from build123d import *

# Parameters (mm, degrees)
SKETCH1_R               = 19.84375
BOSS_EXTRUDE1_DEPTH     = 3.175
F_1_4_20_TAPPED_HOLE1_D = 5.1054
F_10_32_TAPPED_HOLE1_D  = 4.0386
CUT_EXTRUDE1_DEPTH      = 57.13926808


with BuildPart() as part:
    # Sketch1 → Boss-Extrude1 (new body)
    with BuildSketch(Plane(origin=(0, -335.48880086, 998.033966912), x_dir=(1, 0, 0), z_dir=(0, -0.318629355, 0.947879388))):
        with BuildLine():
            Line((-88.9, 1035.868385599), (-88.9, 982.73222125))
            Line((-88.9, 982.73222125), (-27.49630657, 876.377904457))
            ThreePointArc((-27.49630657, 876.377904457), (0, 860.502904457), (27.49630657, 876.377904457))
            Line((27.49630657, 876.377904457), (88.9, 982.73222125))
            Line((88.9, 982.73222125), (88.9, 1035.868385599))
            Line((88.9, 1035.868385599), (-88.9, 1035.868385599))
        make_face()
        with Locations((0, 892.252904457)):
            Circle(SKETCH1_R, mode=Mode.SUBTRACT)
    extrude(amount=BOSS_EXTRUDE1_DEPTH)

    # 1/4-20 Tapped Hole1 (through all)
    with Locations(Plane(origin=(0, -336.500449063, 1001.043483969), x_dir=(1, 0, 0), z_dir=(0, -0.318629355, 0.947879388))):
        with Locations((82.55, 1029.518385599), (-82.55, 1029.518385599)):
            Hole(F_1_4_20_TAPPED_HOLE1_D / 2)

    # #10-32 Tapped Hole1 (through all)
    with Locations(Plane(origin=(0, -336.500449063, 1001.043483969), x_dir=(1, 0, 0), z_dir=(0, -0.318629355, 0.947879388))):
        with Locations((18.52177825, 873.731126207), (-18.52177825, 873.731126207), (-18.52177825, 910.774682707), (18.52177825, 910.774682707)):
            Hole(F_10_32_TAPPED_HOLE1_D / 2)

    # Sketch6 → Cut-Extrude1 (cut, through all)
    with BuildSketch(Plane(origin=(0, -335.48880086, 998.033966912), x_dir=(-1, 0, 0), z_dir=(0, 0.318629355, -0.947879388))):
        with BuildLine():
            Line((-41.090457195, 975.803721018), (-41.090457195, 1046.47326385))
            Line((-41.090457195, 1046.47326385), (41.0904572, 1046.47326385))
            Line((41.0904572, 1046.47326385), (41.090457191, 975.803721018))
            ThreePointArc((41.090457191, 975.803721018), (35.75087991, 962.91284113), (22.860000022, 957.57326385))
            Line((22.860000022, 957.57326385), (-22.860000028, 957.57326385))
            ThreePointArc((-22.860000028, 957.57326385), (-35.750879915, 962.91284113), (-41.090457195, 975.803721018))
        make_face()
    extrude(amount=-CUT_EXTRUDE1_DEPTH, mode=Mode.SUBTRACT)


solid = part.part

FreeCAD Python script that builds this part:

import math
import FreeCAD as App
import Part
import Sketcher
from FreeCAD import Vector
Q = App.Units.Quantity

doc = App.newDocument("Part")
body = doc.addObject("PartDesign::Body", "Body")

# Sketch on an angled plane
sketch1 = body.newObject("Sketcher::SketchObject", "Sketch")
sketch1.Placement = App.Placement(Vector(0, -335.488801, 998.033967), App.Rotation(Vector(1, 0, 0), Vector(0, 0.947879388, 0.318629355), Vector(0, -0.318629355, 0.947879388), "ZXY"))
sketch1.addGeometry(Part.LineSegment(Vector(-89, 1036, 0), Vector(-89, 983, 0)), False)
sketch1.addGeometry(Part.LineSegment(Vector(-89, 983, 0), Vector(-27, 876, 0)), False)
sketch1.addGeometry(Part.ArcOfCircle(Part.Circle(Vector(0, 892, 0), Vector(0, 0, 1), 32), math.radians(-150), math.radians(-30)), False)
sketch1.addGeometry(Part.LineSegment(Vector(27, 876, 0), Vector(89, 983, 0)), False)
sketch1.addGeometry(Part.LineSegment(Vector(89, 983, 0), Vector(89, 1036, 0)), False)
sketch1.addGeometry(Part.LineSegment(Vector(89, 1036, 0), Vector(-89, 1036, 0)), False)
sketch1.addGeometry(Part.Circle(Vector(0, 892, 0), Vector(0, 0, 1), 20), False)
sketch1.addConstraint(Sketcher.Constraint("Coincident", 0, 2, 1, 1))
sketch1.addConstraint(Sketcher.Constraint("Tangent", 1, 2, 2, 1))
sketch1.addConstraint(Sketcher.Constraint("Tangent", 2, 2, 3, 1))
sketch1.addConstraint(Sketcher.Constraint("Coincident", 3, 2, 4, 1))
sketch1.addConstraint(Sketcher.Constraint("Coincident", 4, 2, 5, 1))
sketch1.addConstraint(Sketcher.Constraint("Coincident", 5, 2, 0, 1))
sketch1.addConstraint(Sketcher.Constraint("Vertical", 0))
sketch1.addConstraint(Sketcher.Constraint("Vertical", 4))
sketch1.addConstraint(Sketcher.Constraint("Horizontal", 5))
sketch1.addConstraint(Sketcher.Constraint("Coincident", 6, 3, 2, 3))
sketch1.addConstraint(Sketcher.Constraint("Symmetric", 1, 2, 2, 2, -2))
sketch1.addConstraint(Sketcher.Constraint("Horizontal", 0, 2, 3, 2))
sketch1.addConstraint(Sketcher.Constraint("DistanceX", 5, 2, 5, 1, Q("7 in")))
sketch1.addConstraint(Sketcher.Constraint("Radius", 2, Q("1.25 in")))
sketch1.addConstraint(Sketcher.Constraint("Diameter", 6, Q("1.5625 in")))
sketch1.addConstraint(Sketcher.Constraint("Angle", 1, Q("-60 deg")))
sketch1.addConstraint(Sketcher.Constraint("DistanceY", 0, 2, 0, 1, Q("53.136164 mm")))
sketch1.addConstraint(Sketcher.Constraint("DistanceY", -1, 1, 0, 2, Q("982.732221 mm")))
pad1 = body.newObject("PartDesign::Pad", "Pad")
pad1.Profile = sketch1
pad1.Length = Q("0.125 in")

# Sketch on an angled plane
sketch2 = body.newObject("Sketcher::SketchObject", "Sketch001")
sketch2.Placement = App.Placement(Vector(0, -336.500449, 1001.043484), App.Rotation(Vector(1, 0, 0), Vector(0, 0.947879388, 0.318629355), Vector(0, -0.318629355, 0.947879388), "ZXY"))
sketch2.addGeometry(Part.Circle(Vector(82.5, 1029.5, 0), Vector(0, 0, 1), 2.6), False)
sketch2.addGeometry(Part.Circle(Vector(-82.5, 1029.5, 0), Vector(0, 0, 1), 2.6), False)
sketch2.addConstraint(Sketcher.Constraint("Equal", 0, 1))
sketch2.addConstraint(Sketcher.Constraint("Symmetric", 0, 3, 1, 3, -2))
sketch2.addConstraint(Sketcher.Constraint("Diameter", 0, Q("0.201 in")))
sketch2.addConstraint(Sketcher.Constraint("DistanceX", 1, 3, 0, 3, Q("6.5 in")))
sketch2.addConstraint(Sketcher.Constraint("DistanceY", -1, 1, 0, 3, Q("1029.518386 mm")))
doc.recompute()
hole = body.newObject("PartDesign::Hole", "Hole")
hole.Profile = sketch2
hole.ThreadType = "None"
hole.Diameter = Q("0.201 in")
hole.DepthType = "ThroughAll"

# Sketch on an angled plane
sketch3 = body.newObject("Sketcher::SketchObject", "Sketch002")
sketch3.Placement = App.Placement(Vector(0, -336.500449, 1001.043484), App.Rotation(Vector(1, 0, 0), Vector(0, 0.947879388, 0.318629355), Vector(0, -0.318629355, 0.947879388), "ZXY"))
sketch3.addGeometry(Part.Circle(Vector(18.5, 873.7, 0), Vector(0, 0, 1), 2), False)
sketch3.addGeometry(Part.Circle(Vector(-18.5, 873.7, 0), Vector(0, 0, 1), 2), False)
sketch3.addGeometry(Part.Circle(Vector(-18.5, 910.8, 0), Vector(0, 0, 1), 2), False)
sketch3.addGeometry(Part.Circle(Vector(18.5, 910.8, 0), Vector(0, 0, 1), 2), False)
sketch3.addConstraint(Sketcher.Constraint("Equal", 0, 1))
sketch3.addConstraint(Sketcher.Constraint("Equal", 1, 2))
sketch3.addConstraint(Sketcher.Constraint("Equal", 2, 3))
sketch3.addConstraint(Sketcher.Constraint("Symmetric", 0, 3, 1, 3, -2))
sketch3.addConstraint(Sketcher.Constraint("Symmetric", 2, 3, 3, 3, -2))
sketch3.addConstraint(Sketcher.Constraint("Vertical", 1, 3, 2, 3))
sketch3.addConstraint(Sketcher.Constraint("Diameter", 0, Q("0.159 in")))
sketch3.addConstraint(Sketcher.Constraint("DistanceX", -1, 1, 0, 3, Q("18.521778 mm")))
sketch3.addConstraint(Sketcher.Constraint("DistanceY", -1, 1, 0, 3, Q("873.731126 mm")))
sketch3.addConstraint(Sketcher.Constraint("DistanceY", -1, 1, 2, 3, Q("910.774683 mm")))
doc.recompute()
hole2 = body.newObject("PartDesign::Hole", "Hole001")
hole2.Profile = sketch3
hole2.ThreadType = "None"
hole2.Diameter = Q("0.159 in")
hole2.DepthType = "ThroughAll"

# Sketch on an angled plane
sketch4 = body.newObject("Sketcher::SketchObject", "Sketch003")
sketch4.Placement = App.Placement(Vector(0, -335.488801, 998.033967), App.Rotation(Vector(-1, 0, 0), Vector(0, 0.947879388, 0.318629355), Vector(0, 0.318629355, -0.947879388), "ZXY"))
sketch4.addGeometry(Part.LineSegment(Vector(-41, 1046, 0), Vector(-41, 976, 0)), False)
sketch4.addGeometry(Part.ArcOfCircle(Part.Circle(Vector(-23, 976, 0), Vector(0, 0, 1), 18), math.radians(180), math.radians(270)), False)
sketch4.addGeometry(Part.LineSegment(Vector(-23, 958, 0), Vector(23, 958, 0)), False)
sketch4.addGeometry(Part.ArcOfCircle(Part.Circle(Vector(23, 976, 0), Vector(0, 0, 1), 18), math.radians(-90), math.radians(0)), False)
sketch4.addGeometry(Part.LineSegment(Vector(41, 976, 0), Vector(41, 1046, 0)), False)
sketch4.addGeometry(Part.LineSegment(Vector(41, 1046, 0), Vector(-41, 1046, 0)), False)
sketch4.addConstraint(Sketcher.Constraint("Tangent", 0, 2, 1, 1))
sketch4.addConstraint(Sketcher.Constraint("Tangent", 1, 2, 2, 1))
sketch4.addConstraint(Sketcher.Constraint("Tangent", 2, 2, 3, 1))
sketch4.addConstraint(Sketcher.Constraint("Tangent", 3, 2, 4, 1))
sketch4.addConstraint(Sketcher.Constraint("Coincident", 4, 2, 5, 1))
sketch4.addConstraint(Sketcher.Constraint("Coincident", 5, 2, 0, 1))
sketch4.addConstraint(Sketcher.Constraint("Vertical", 0))
sketch4.addConstraint(Sketcher.Constraint("Horizontal", 2))
sketch4.addConstraint(Sketcher.Constraint("Vertical", 4))
sketch4.addConstraint(Sketcher.Constraint("Horizontal", 5))
sketch4.addConstraint(Sketcher.Constraint("Equal", 1, 3))
sketch4.addConstraint(Sketcher.Constraint("DistanceX", 2, 1, 2, 2, Q("1.8 in")))
sketch4.addConstraint(Sketcher.Constraint("DistanceX", 1, 3, -1, 1, Q("0.9 in")))
sketch4.addConstraint(Sketcher.Constraint("DistanceY", 2, 2, 4, 2, Q("3.5 in")))
sketch4.addConstraint(Sketcher.Constraint("Radius", 1, Q("18.230457 mm")))
sketch4.addConstraint(Sketcher.Constraint("DistanceY", -1, 1, 1, 3, Q("975.803721 mm")))
pocket1 = body.newObject("PartDesign::Pocket", "Pocket")
pocket1.Profile = sketch4
pocket1.Type = "ThroughAll"

doc.recompute()
